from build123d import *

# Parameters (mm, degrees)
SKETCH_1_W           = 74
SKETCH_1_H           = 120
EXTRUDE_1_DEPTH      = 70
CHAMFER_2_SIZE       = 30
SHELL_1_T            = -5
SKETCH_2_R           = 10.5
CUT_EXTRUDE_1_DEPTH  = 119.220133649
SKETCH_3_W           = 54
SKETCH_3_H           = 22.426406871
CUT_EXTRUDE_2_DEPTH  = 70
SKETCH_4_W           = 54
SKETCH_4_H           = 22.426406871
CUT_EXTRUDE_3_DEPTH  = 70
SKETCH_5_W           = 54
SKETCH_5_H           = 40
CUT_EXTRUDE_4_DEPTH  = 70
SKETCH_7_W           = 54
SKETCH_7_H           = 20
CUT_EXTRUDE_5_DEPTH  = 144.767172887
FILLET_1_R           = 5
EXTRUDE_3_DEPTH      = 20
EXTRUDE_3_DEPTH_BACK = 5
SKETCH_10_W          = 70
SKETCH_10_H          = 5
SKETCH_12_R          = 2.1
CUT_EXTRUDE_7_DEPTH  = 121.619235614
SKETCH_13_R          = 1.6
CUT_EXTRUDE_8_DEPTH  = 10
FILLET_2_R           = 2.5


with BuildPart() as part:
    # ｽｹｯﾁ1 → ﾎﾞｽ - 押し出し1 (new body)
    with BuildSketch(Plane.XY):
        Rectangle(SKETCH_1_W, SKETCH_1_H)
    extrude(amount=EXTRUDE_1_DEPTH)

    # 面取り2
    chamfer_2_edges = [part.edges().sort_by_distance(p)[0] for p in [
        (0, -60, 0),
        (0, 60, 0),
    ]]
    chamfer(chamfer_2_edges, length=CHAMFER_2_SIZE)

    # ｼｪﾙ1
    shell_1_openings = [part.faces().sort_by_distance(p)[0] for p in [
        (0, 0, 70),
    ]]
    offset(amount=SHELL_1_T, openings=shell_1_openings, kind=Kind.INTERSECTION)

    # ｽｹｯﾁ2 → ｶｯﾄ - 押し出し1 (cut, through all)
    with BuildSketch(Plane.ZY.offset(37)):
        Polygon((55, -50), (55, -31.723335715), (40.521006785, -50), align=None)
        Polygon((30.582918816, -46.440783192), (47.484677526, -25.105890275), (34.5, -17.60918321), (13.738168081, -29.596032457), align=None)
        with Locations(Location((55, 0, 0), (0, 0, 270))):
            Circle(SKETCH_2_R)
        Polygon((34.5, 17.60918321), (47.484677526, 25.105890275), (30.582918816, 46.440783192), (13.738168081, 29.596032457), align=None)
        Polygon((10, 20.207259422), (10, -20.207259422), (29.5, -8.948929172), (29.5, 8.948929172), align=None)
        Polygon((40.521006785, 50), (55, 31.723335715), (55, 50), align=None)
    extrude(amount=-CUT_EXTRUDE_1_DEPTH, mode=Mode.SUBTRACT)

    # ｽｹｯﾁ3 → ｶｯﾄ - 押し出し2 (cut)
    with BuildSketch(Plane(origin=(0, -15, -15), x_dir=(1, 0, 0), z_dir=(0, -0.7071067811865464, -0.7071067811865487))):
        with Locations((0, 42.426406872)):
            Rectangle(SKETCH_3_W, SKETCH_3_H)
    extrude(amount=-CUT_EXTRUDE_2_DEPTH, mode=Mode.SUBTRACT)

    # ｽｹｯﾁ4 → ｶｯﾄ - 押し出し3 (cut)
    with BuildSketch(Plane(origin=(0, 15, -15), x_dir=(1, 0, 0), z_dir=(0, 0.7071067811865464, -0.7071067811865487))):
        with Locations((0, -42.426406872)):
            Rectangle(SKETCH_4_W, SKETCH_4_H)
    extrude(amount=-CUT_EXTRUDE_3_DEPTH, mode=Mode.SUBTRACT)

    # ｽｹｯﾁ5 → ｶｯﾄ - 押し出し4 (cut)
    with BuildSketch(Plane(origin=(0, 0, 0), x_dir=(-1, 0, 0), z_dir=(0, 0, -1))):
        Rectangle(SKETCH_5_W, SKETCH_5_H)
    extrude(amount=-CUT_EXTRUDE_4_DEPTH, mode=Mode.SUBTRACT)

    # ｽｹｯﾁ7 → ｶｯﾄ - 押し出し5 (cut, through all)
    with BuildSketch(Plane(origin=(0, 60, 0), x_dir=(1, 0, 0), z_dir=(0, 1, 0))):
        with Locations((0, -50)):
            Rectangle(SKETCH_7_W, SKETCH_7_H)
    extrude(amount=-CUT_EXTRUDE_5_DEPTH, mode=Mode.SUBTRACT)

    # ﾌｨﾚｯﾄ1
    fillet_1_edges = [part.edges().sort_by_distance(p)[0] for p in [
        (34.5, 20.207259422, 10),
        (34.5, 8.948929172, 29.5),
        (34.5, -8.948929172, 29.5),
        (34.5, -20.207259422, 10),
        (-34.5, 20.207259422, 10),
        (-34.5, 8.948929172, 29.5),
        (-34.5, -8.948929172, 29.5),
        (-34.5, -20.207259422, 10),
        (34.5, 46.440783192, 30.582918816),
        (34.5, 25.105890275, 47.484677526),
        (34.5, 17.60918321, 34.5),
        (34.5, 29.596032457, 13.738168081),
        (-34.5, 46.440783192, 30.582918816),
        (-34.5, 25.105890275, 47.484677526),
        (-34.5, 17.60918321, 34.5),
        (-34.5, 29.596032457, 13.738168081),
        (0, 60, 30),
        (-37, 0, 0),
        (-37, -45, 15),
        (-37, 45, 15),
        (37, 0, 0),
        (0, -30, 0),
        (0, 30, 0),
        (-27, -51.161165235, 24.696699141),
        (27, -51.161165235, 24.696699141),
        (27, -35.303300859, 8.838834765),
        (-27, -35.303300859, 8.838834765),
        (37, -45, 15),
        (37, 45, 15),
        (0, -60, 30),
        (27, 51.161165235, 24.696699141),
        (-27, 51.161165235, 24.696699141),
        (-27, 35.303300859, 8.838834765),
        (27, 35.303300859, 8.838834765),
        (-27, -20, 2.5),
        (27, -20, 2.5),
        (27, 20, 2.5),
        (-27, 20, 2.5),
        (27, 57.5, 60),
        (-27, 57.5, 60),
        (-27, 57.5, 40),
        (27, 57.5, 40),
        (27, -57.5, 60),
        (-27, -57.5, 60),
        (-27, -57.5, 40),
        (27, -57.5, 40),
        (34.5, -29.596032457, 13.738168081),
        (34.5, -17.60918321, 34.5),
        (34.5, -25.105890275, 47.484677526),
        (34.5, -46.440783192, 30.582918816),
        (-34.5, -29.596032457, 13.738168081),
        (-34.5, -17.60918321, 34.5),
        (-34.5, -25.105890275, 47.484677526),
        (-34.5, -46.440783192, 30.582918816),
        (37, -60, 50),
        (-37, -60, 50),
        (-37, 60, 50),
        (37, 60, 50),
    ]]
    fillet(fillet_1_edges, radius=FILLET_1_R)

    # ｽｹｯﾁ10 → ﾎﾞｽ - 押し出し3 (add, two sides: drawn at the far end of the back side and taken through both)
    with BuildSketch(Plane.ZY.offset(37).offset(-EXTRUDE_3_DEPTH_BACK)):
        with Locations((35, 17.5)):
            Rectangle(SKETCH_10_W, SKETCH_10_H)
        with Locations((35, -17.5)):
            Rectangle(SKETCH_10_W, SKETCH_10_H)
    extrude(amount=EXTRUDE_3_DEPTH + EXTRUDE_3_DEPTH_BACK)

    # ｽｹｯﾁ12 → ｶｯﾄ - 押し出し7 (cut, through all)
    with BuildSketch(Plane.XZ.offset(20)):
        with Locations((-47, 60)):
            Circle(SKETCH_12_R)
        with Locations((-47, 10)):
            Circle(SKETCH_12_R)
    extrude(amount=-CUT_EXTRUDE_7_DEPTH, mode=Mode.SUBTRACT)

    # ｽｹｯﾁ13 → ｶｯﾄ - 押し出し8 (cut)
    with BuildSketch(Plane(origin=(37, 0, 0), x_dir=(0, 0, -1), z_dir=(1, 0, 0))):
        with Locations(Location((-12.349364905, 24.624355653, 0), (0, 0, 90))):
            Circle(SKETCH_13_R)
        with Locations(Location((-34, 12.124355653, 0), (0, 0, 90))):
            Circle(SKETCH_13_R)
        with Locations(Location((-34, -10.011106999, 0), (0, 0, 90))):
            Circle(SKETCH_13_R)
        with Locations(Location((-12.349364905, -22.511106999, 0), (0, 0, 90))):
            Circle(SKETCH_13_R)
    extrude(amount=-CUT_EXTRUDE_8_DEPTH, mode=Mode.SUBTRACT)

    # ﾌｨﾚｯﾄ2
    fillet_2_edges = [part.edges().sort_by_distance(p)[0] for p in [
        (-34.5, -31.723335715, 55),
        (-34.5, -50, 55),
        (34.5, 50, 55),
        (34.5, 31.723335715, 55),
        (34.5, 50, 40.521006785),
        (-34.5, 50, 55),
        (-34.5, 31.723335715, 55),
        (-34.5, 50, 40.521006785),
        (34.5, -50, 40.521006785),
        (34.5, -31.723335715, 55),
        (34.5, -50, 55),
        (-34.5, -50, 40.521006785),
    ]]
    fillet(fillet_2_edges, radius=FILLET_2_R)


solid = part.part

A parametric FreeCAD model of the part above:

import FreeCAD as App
import Part
import Sketcher
from FreeCAD import Vector
Q = App.Units.Quantity


def edges_at(feature, points):
    """Names of the edges that pass closest to the given points."""
    edges = feature.Shape.Edges
    near = lambda p: min(range(len(edges)), key=lambda i: edges[i].distToShape(Part.Vertex(*p))[0])
    return sorted({f"Edge{near(p) + 1}" for p in points})


def faces_at(feature, points):
    """Names of the faces that lie closest to the given points."""
    faces = feature.Shape.Faces
    near = lambda p: min(range(len(faces)), key=lambda i: faces[i].distToShape(Part.Vertex(*p))[0])
    return sorted({f"Face{near(p) + 1}" for p in points})


def add_polygon(sketch, points):
    """Adds a closed chain of lines whose ends are joined by coincident constraints."""
    first, n = sketch.GeometryCount, len(points)
    for a, b in zip(points, points[1:] + points[:1]):
        sketch.addGeometry(Part.LineSegment(App.Vector(*a, 0), App.Vector(*b, 0)), False)
    for i in range(n):
        sketch.addConstraint(Sketcher.Constraint("Coincident", first + i, 2, first + (i + 1) % n, 1))

doc = App.newDocument("Part")
body = doc.addObject("PartDesign::Body", "Body")

sketch1 = doc.addObject("Sketcher::SketchObject", "Sketch")
body.addObject(sketch1)
sketch1.AttachmentSupport = (doc.XY_Plane, [""])
sketch1.MapMode = "FlatFace"
add_polygon(sketch1, [(-37, 60), (-37, -60), (37, -60), (37, 60)])
sketch1.addConstraint(Sketcher.Constraint("Vertical", 0))
sketch1.addConstraint(Sketcher.Constraint("Horizontal", 1))
sketch1.addConstraint(Sketcher.Constraint("Vertical", 2))
sketch1.addConstraint(Sketcher.Constraint("Horizontal", 3))
sketch1.addConstraint(Sketcher.Constraint("Symmetric", 0, 2, 2, 2, -1, 1))
sketch1.addConstraint(Sketcher.Constraint("DistanceX", 1, 1, 1, 2, 74.0))
sketch1.addConstraint(Sketcher.Constraint("DistanceY", 0, 2, 0, 1, 120.0))
pad1 = doc.addObject("PartDesign::Pad", "Pad")
body.addObject(pad1)
pad1.Profile = sketch1
pad1.Length = 70
doc.recompute()

chamfer = doc.addObject("PartDesign::Chamfer", "Chamfer")
body.addObject(chamfer)
chamfer.Base = (pad1, edges_at(pad1, [(0, -60, 0), (0, 60, 0)]))
chamfer.Size = 30
doc.recompute()

thickness = doc.addObject("PartDesign::Thickness", "Thickness")
body.addObject(thickness)
thickness.Base = (chamfer, faces_at(chamfer, [(0, 0, 70)]))
thickness.Value = 5
thickness.Reversed = True
thickness.Join = "Intersection"

sketch2 = doc.addObject("Sketcher::SketchObject", "Sketch001")
body.addObject(sketch2)
sketch2.AttachmentSupport = (doc.YZ_Plane, [""])
sketch2.MapMode = "FlatFace"
sketch2.AttachmentOffset = App.Placement(Vector(0, 0, -37), App.Rotation())
add_polygon(sketch2, [(-50, 55), (-32, 55), (-50, 41)])
add_polygon(sketch2, [(-46, 31), (-25, 47), (-18, 34), (-30, 14)])
sketch2.addGeometry(Part.Circle(Vector(0, 55, 0), Vector(0, 0, 1), 10), False)
add_polygon(sketch2, [(18, 34), (25, 47), (46, 31), (30, 14)])
add_polygon(sketch2, [(20, 10), (-20, 10), (-9, 30), (9, 30)])
add_polygon(sketch2, [(50, 41), (32, 55), (50, 55)])
sketch2.addConstraint(Sketcher.Constraint("Horizontal", 0))
sketch2.addConstraint(Sketcher.Constraint("Vertical", 2))
sketch2.addConstraint(Sketcher.Constraint("Horizontal", 12))
sketch2.addConstraint(Sketcher.Constraint("Horizontal", 14))
sketch2.addConstraint(Sketcher.Constraint("Horizontal", 17))
sketch2.addConstraint(Sketcher.Constraint("Vertical", 18))
sketch2.addConstraint(Sketcher.Constraint("Symmetric", 3, 2, 8, 2, -2))
sketch2.addConstraint(Sketcher.Constraint("Symmetric", 6, 2, 9, 2, -2))
sketch2.addConstraint(Sketcher.Constraint("Symmetric", 5, 2, 10, 2, -2))
sketch2.addConstraint(Sketcher.Constraint("Symmetric", 4, 2, 11, 2, -2))
sketch2.addConstraint(Sketcher.Constraint("Symmetric", 0, 2, 16, 2, -2))
sketch2.addConstraint(Sketcher.Constraint("Symmetric", 1, 2, 18, 2, -2))
sketch2.addConstraint(Sketcher.Constraint("PointOnObject", 7, 3, -2))
sketch2.addConstraint(Sketcher.Constraint("Parallel", 1, 3))
sketch2.addConstraint(Sketcher.Constraint("Parallel", 5, 8))
sketch2.addConstraint(Sketcher.Constraint("Perpendicular", 6, 10))
sketch2.addConstraint(Sketcher.Constraint("Parallel", 8, 13))
sketch2.addConstraint(Sketcher.Constraint("Parallel", 11, 15))
sketch2.addConstraint(Sketcher.Constraint("Horizontal", 7, 3, 0, 2))
sketch2.addConstraint(Sketcher.Constraint("Diameter", 7, 21.0))
sketch2.addConstraint(Sketcher.Constraint("Angle", 4, Q("-60 deg")))
sketch2.addConstraint(Sketcher.Constraint("DistanceY", -1, 1, 7, 3, 55.0))
sketch2.addConstraint(Sketcher.Constraint("DistanceX", 1, 2, -1, 1, 50.0))
sketch2.addConstraint(Sketcher.Constraint("DistanceY", -1, 1, 12, 2, 10.0))
sketch2.addConstraint(Sketcher.Constraint("DistanceY", 13, 2, 4, 2, 5.0))
sketch2.addConstraint(Sketcher.Constraint("DistanceY", -1, 1, 4, 2, 34.5))
sketch2.addConstraint(Sketcher.Constraint("Distance", 5, 23.973698))
sketch2.addConstraint(Sketcher.Constraint("DistanceX", 12, 2, 12, 1, 40.414519))
sketch2.addConstraint(Sketcher.Constraint("DistanceX", 11, 2, 9, 2, 28.8316))
sketch2.addConstraint(Sketcher.Constraint("DistanceX", 0, 1, 0, 2, 18.276664))
sketch2.addConstraint(Sketcher.Constraint("DistanceY", 2, 1, 2, 2, 14.478993))
sketch2.addConstraint(Sketcher.Constraint("DistanceX", 3, 2, -1, 1, 25.10589))
sketch2.addConstraint(Sketcher.Constraint("DistanceX", 12, 2, -1, 1, 20.207259))
pocket1 = doc.addObject("PartDesign::Pocket", "Pocket")
body.addObject(pocket1)
pocket1.Profile = sketch2
pocket1.Type = "ThroughAll"
pocket1.Reversed = True

sketch3 = doc.addObject("Sketcher::SketchObject", "Sketch002")
body.addObject(sketch3)
sketch3.Placement = App.Placement(Vector(0, -15, -15), App.Rotation(Vector(1, 0, 0), Vector(0, -0.707106781, 0.707106781), Vector(0, -0.707106781, -0.707106781), "ZXY"))
add_polygon(sketch3, [(-27, 54), (-27, 31), (27, 31), (27, 54)])
sketch3.addConstraint(Sketcher.Constraint("Vertical", 0))
sketch3.addConstraint(Sketcher.Constraint("Horizontal", 1))
sketch3.addConstraint(Sketcher.Constraint("Vertical", 2))
sketch3.addConstraint(Sketcher.Constraint("Horizontal", 3))
sketch3.addConstraint(Sketcher.Constraint("DistanceX", 1, 1, 1, 2, 54.0))
sketch3.addConstraint(Sketcher.Constraint("DistanceX", 0, 2, -1, 1, 27.0))
sketch3.addConstraint(Sketcher.Constraint("DistanceY", 0, 2, 0, 1, 22.426407))
sketch3.addConstraint(Sketcher.Constraint("DistanceY", -1, 1, 2, 2, 53.63961))
pocket2 = doc.addObject("PartDesign::Pocket", "Pocket001")
body.addObject(pocket2)
pocket2.Profile = sketch3
pocket2.Length = 70

sketch4 = doc.addObject("Sketcher::SketchObject", "Sketch003")
body.addObject(sketch4)
sketch4.Placement = App.Placement(Vector(0, 15, -15), App.Rotation(Vector(1, 0, 0), Vector(0, -0.707106781, -0.707106781), Vector(0, 0.707106781, -0.707106781), "ZXY"))
add_polygon(sketch4, [(-27, -31), (-27, -54), (27, -54), (27, -31)])
sketch4.addConstraint(Sketcher.Constraint("Vertical", 0))
sketch4.addConstraint(Sketcher.Constraint("Horizontal", 1))
sketch4.addConstraint(Sketcher.Constraint("Vertical", 2))
sketch4.addConstraint(Sketcher.Constraint("Horizontal", 3))
sketch4.addConstraint(Sketcher.Constraint("DistanceX", 1, 1, 1, 2, 54.0))
sketch4.addConstraint(Sketcher.Constraint("DistanceX", 0, 2, -1, 1, 27.0))
sketch4.addConstraint(Sketcher.Constraint("DistanceY", 0, 2, 0, 1, 22.426407))
sketch4.addConstraint(Sketcher.Constraint("DistanceY", 0, 2, -1, 1, 53.63961))
pocket3 = doc.addObject("PartDesign::Pocket", "Pocket002")
body.addObject(pocket3)
pocket3.Profile = sketch4
pocket3.Length = 70

sketch5 = doc.addObject("Sketcher::SketchObject", "Sketch004")
body.addObject(sketch5)
sketch5.AttachmentSupport = (doc.XY_Plane, [""])
sketch5.MapMode = "FlatFace"
add_polygon(sketch5, [(27, 20), (27, -20), (-27, -20), (-27, 20)])
sketch5.addConstraint(Sketcher.Constraint("Vertical", 0))
sketch5.addConstraint(Sketcher.Constraint("Horizontal", 1))
sketch5.addConstraint(Sketcher.Constraint("Vertical", 2))
sketch5.addConstraint(Sketcher.Constraint("Horizontal", 3))
sketch5.addConstraint(Sketcher.Constraint("Symmetric", 0, 2, 2, 2, -1, 1))
sketch5.addConstraint(Sketcher.Constraint("DistanceX", 1, 2, 1, 1, 54.0))
sketch5.addConstraint(Sketcher.Constraint("DistanceY", 0, 2, 0, 1, 40.0))
pocket4 = doc.addObject("PartDesign::Pocket", "Pocket003")
body.addObject(pocket4)
pocket4.Profile = sketch5
pocket4.Length = 70
pocket4.Reversed = True

sketch6 = doc.addObject("Sketcher::SketchObject", "Sketch005")
body.addObject(sketch6)
sketch6.AttachmentSupport = (doc.XZ_Plane, [""])
sketch6.MapMode = "FlatFace"
sketch6.AttachmentOffset = App.Placement(Vector(0, 0, -60), App.Rotation())
add_polygon(sketch6, [(-27, 40), (-27, 60), (27, 60), (27, 40)])
sketch6.addConstraint(Sketcher.Constraint("Vertical", 0))
sketch6.addConstraint(Sketcher.Constraint("Horizontal", 1))
sketch6.addConstraint(Sketcher.Constraint("Vertical", 2))
sketch6.addConstraint(Sketcher.Constraint("Horizontal", 3))
sketch6.addConstraint(Sketcher.Constraint("DistanceX", 1, 1, 1, 2, 54.0))
sketch6.addConstraint(Sketcher.Constraint("DistanceY", 0, 1, 0, 2, 20.0))
sketch6.addConstraint(Sketcher.Constraint("DistanceX", 0, 2, -1, 1, 27.0))
sketch6.addConstraint(Sketcher.Constraint("DistanceY", -1, 1, 0, 2, 60.0))
pocket5 = doc.addObject("PartDesign::Pocket", "Pocket004")
body.addObject(pocket5)
pocket5.Profile = sketch6
pocket5.Type = "ThroughAll"
pocket5.Reversed = True
doc.recompute()

fillet = doc.addObject("PartDesign::Fillet", "Fillet")
body.addObject(fillet)
fillet.Base = (pocket5, edges_at(pocket5, [
    (34.5, 20.207, 10),
    (34.5, 8.949, 29.5),
    (34.5, -8.949, 29.5),
    (34.5, -20.207, 10),
    (-34.5, 20.207, 10),
    (-34.5, 8.949, 29.5),
    (-34.5, -8.949, 29.5),
    (-34.5, -20.207, 10),
    (34.5, 46.441, 30.583),
    (34.5, 25.106, 47.485),
    (34.5, 17.609, 34.5),
    (34.5, 29.596, 13.738),
    (-34.5, 46.441, 30.583),
    (-34.5, 25.106, 47.485),
    (-34.5, 17.609, 34.5),
    (-34.5, 29.596, 13.738),
    (0, 60, 30),
    (-37, 0, 0),
    (-37, -45, 15),
    (-37, 45, 15),
    (37, 0, 0),
    (0, -30, 0),
    (0, 30, 0),
    (-27, -51.161, 24.697),
    (27, -51.161, 24.697),
    (27, -35.303, 8.839),
    (-27, -35.303, 8.839),
    (37, -45, 15),
    (37, 45, 15),
    (0, -60, 30),
    (27, 51.161, 24.697),
    (-27, 51.161, 24.697),
    (-27, 35.303, 8.839),
    (27, 35.303, 8.839),
    (-27, -20, 2.5),
    (27, -20, 2.5),
    (27, 20, 2.5),
    (-27, 20, 2.5),
    (27, 57.5, 60),
    (-27, 57.5, 60),
    (-27, 57.5, 40),
    (27, 57.5, 40),
    (27, -57.5, 60),
    (-27, -57.5, 60),
    (-27, -57.5, 40),
    (27, -57.5, 40),
    (34.5, -29.596, 13.738),
    (34.5, -17.609, 34.5),
    (34.5, -25.106, 47.485),
    (34.5, -46.441, 30.583),
    (-34.5, -29.596, 13.738),
    (-34.5, -17.609, 34.5),
    (-34.5, -25.106, 47.485),
    (-34.5, -46.441, 30.583),
    (37, -60, 50),
    (-37, -60, 50),
    (-37, 60, 50),
    (37, 60, 50),
]))
fillet.Radius = 5

sketch7 = doc.addObject("Sketcher::SketchObject", "Sketch006")
body.addObject(sketch7)
sketch7.AttachmentSupport = (doc.YZ_Plane, [""])
sketch7.MapMode = "FlatFace"
sketch7.AttachmentOffset = App.Placement(Vector(0, 0, -37), App.Rotation())
add_polygon(sketch7, [(20, 0), (15, 0), (15, 70), (20, 70)])
add_polygon(sketch7, [(-15, 0), (-20, 0), (-20, 70), (-15, 70)])
sketch7.addConstraint(Sketcher.Constraint("Horizontal", 0))
sketch7.addConstraint(Sketcher.Constraint("Vertical", 1))
sketch7.addConstraint(Sketcher.Constraint("Horizontal", 2))
sketch7.addConstraint(Sketcher.Constraint("Vertical", 3))
sketch7.addConstraint(Sketcher.Constraint("Horizontal", 4))
sketch7.addConstraint(Sketcher.Constraint("Vertical", 5))
sketch7.addConstraint(Sketcher.Constraint("Horizontal", 6))
sketch7.addConstraint(Sketcher.Constraint("Vertical", 7))
sketch7.addConstraint(Sketcher.Constraint("Symmetric", 3, 2, 4, 2, -1, 1))
sketch7.addConstraint(Sketcher.Constraint("Symmetric", 1, 2, 6, 2, -2))
sketch7.addConstraint(Sketcher.Constraint("PointOnObject", 0, 2, -1))
sketch7.addConstraint(Sketcher.Constraint("DistanceX", 0, 2, 0, 1, 5.0))
sketch7.addConstraint(Sketcher.Constraint("DistanceY", 1, 1, 1, 2, 70.0))
sketch7.addConstraint(Sketcher.Constraint("DistanceX", -1, 1, 0, 2, 15.0))
pad2 = doc.addObject("PartDesign::Pad", "Pad001")
body.addObject(pad2)
pad2.Profile = sketch7
pad2.Type = "TwoLengths"
pad2.Length = 20
pad2.Length2 = 5
pad2.Reversed = True

sketch8 = doc.addObject("Sketcher::SketchObject", "Sketch007")
body.addObject(sketch8)
sketch8.AttachmentSupport = (doc.XZ_Plane, [""])
sketch8.MapMode = "FlatFace"
sketch8.AttachmentOffset = App.Placement(Vector(0, 0, 20), App.Rotation())
sketch8.addGeometry(Part.Circle(Vector(-47, 60, 0), Vector(0, 0, 1), 2.1), False)
sketch8.addGeometry(Part.Circle(Vector(-47, 10, 0), Vector(0, 0, 1), 2.1), False)
sketch8.addConstraint(Sketcher.Constraint("Equal", 0, 1))
sketch8.addConstraint(Sketcher.Constraint("Vertical", 0, 3, 1, 3))
sketch8.addConstraint(Sketcher.Constraint("Diameter", 0, 4.2))
sketch8.addConstraint(Sketcher.Constraint("DistanceX", 0, 3, -1, 1, 47.0))
sketch8.addConstraint(Sketcher.Constraint("DistanceY", -1, 1, 0, 3, 60.0))
sketch8.addConstraint(Sketcher.Constraint("DistanceY", -1, 1, 1, 3, 10.0))
pocket6 = doc.addObject("PartDesign::Pocket", "Pocket005")
body.addObject(pocket6)
pocket6.Profile = sketch8
pocket6.Type = "ThroughAll"

sketch9 = doc.addObject("Sketcher::SketchObject", "Sketch008")
body.addObject(sketch9)
sketch9.AttachmentSupport = (doc.YZ_Plane, [""])
sketch9.MapMode = "FlatFace"
sketch9.AttachmentOffset = App.Placement(Vector(0, 0, 37), App.Rotation())
sketch9.addGeometry(Part.Circle(Vector(24.6, 12.3, 0), Vector(0, 0, 1), 1.6), False)
sketch9.addGeometry(Part.Circle(Vector(12.1, 34, 0), Vector(0, 0, 1), 1.6), False)
sketch9.addGeometry(Part.Circle(Vector(-10, 34, 0), Vector(0, 0, 1), 1.6), False)
sketch9.addGeometry(Part.Circle(Vector(-22.5, 12.3, 0), Vector(0, 0, 1), 1.6), False)
sketch9.addConstraint(Sketcher.Constraint("Equal", 0, 1))
sketch9.addConstraint(Sketcher.Constraint("Equal", 1, 2))
sketch9.addConstraint(Sketcher.Constraint("Equal", 2, 3))
sketch9.addConstraint(Sketcher.Constraint("Horizontal", 1, 3, 2, 3))
sketch9.addConstraint(Sketcher.Constraint("Horizontal", 0, 3, 3, 3))
sketch9.addConstraint(Sketcher.Constraint("Diameter", 0, 3.2))
sketch9.addConstraint(Sketcher.Constraint("DistanceY", -1, 1, 1, 3, 34.0))
sketch9.addConstraint(Sketcher.Constraint("DistanceX", 1, 3, 0, 3, 12.5))
sketch9.addConstraint(Sketcher.Constraint("DistanceX", 3, 3, 2, 3, 12.5))
sketch9.addConstraint(Sketcher.Constraint("DistanceX", -1, 1, 0, 3, 24.624356))
sketch9.addConstraint(Sketcher.Constraint("DistanceY", -1, 1, 0, 3, 12.349365))
sketch9.addConstraint(Sketcher.Constraint("DistanceX", 2, 3, -1, 1, 10.011107))
pocket7 = doc.addObject("PartDesign::Pocket", "Pocket006")
body.addObject(pocket7)
pocket7.Profile = sketch9
pocket7.Length = 10
doc.recompute()

fillet2 = doc.addObject("PartDesign::Fillet", "Fillet001")
body.addObject(fillet2)
fillet2.Base = (pocket7, edges_at(pocket7, [
    (-34.5, -31.723, 55),
    (-34.5, -50, 55),
    (34.5, 50, 55),
    (34.5, 31.723, 55),
    (34.5, 50, 40.521),
    (-34.5, 50, 55),
    (-34.5, 31.723, 55),
    (-34.5, 50, 40.521),
    (34.5, -50, 40.521),
    (34.5, -31.723, 55),
    (34.5, -50, 55),
    (-34.5, -50, 40.521),
]))
fillet2.Radius = 2.5

doc.recompute()
